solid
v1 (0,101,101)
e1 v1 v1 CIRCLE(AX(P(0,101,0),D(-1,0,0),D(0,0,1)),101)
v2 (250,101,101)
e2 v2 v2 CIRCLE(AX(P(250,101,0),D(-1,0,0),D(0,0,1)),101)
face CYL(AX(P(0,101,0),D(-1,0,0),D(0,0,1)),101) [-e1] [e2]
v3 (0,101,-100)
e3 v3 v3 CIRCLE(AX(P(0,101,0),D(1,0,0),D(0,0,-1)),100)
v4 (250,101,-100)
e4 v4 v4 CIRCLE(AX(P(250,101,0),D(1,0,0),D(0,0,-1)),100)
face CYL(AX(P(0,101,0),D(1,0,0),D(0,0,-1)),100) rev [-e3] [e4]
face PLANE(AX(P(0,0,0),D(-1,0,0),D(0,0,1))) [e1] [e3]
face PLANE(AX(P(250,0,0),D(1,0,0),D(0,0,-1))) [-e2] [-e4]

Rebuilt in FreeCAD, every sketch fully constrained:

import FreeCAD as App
import Part
import Sketcher
from FreeCAD import Vector
Q = App.Units.Quantity


def add_polygon(sketch, points):
    """Adds a closed chain of lines whose ends are joined by coincident constraints."""
    first, n = sketch.GeometryCount, len(points)
    for a, b in zip(points, points[1:] + points[:1]):
        sketch.addGeometry(Part.LineSegment(App.Vector(*a, 0), App.Vector(*b, 0)), False)
    for i in range(n):
        sketch.addConstraint(Sketcher.Constraint("Coincident", first + i, 2, first + (i + 1) % n, 1))

doc = App.newDocument("Part")
body = doc.addObject("PartDesign::Body", "Body")

sketch1 = doc.addObject("Sketcher::SketchObject", "Sketch")
body.addObject(sketch1)
sketch1.AttachmentSupport = (doc.XY_Plane, [""])
sketch1.MapMode = "FlatFace"
add_polygon(sketch1, [(0, 101), (0, 0), (250, 0), (250, 101)])
sketch1.addGeometry(Part.LineSegment(Vector(0, 101, 0), Vector(250, 101, 0)), True)
sketch1.addConstraint(Sketcher.Constraint("Vertical", 0))
sketch1.addConstraint(Sketcher.Constraint("Horizontal", 1))
sketch1.addConstraint(Sketcher.Constraint("Vertical", 2))
sketch1.addConstraint(Sketcher.Constraint("Horizontal", 3))
sketch1.addConstraint(Sketcher.Constraint("Horizontal", 4))
sketch1.addConstraint(Sketcher.Constraint("Coincident", 0, 2, -1, 1))
sketch1.addConstraint(Sketcher.Constraint("Coincident", 4, 1, 3, 2))
sketch1.addConstraint(Sketcher.Constraint("Vertical", 1, 2, 4, 2))
sketch1.addConstraint(Sketcher.Constraint("DistanceX", 1, 1, 1, 2, Q("250 mm")))
sketch1.addConstraint(Sketcher.Constraint("DistanceY", 0, 2, 0, 1, Q("101 mm")))
revolution = doc.addObject("PartDesign::Revolution", "Revolution")
body.addObject(revolution)
revolution.Profile = sketch1
revolution.ReferenceAxis = (sketch1, ["Axis0"])
revolution.Angle = 360

sketch2 = doc.addObject("Sketcher::SketchObject", "Sketch001")
body.addObject(sketch2)
sketch2.AttachmentSupport = (doc.YZ_Plane, [""])
sketch2.MapMode = "FlatFace"
sketch2.AttachmentOffset = App.Placement(Vector(0, 0, 250), App.Rotation())
sketch2.addGeometry(Part.Circle(Vector(101, 0, 0), Vector(0, 0, 1), 100), False)
sketch2.addConstraint(Sketcher.Constraint("PointOnObject", 0, 3, -1))
sketch2.addConstraint(Sketcher.Constraint("Diameter", 0, Q("200 mm")))
sketch2.addConstraint(Sketcher.Constraint("DistanceX", -1, 1, 0, 3, Q("101 mm")))
pocket1 = doc.addObject("PartDesign::Pocket", "Pocket")
body.addObject(pocket1)
pocket1.Profile = sketch2
pocket1.Length = 250

doc.recompute()
